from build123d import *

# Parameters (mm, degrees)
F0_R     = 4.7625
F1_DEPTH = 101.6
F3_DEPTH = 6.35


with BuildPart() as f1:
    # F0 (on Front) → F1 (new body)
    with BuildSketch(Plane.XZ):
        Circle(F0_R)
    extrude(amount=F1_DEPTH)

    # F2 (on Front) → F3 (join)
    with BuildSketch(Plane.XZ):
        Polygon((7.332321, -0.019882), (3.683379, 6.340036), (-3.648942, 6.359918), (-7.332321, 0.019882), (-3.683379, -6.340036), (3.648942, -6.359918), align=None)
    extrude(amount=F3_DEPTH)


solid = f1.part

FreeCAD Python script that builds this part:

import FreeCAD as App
import Part
import Sketcher
from FreeCAD import Vector
Q = App.Units.Quantity


def add_polygon(sketch, points):
    """Adds a closed chain of lines whose ends are joined by coincident constraints."""
    first, n = sketch.GeometryCount, len(points)
    for a, b in zip(points, points[1:] + points[:1]):
        sketch.addGeometry(Part.LineSegment(App.Vector(*a, 0), App.Vector(*b, 0)), False)
    for i in range(n):
        sketch.addConstraint(Sketcher.Constraint("Coincident", first + i, 2, first + (i + 1) % n, 1))

doc = App.newDocument("Part")
body = doc.addObject("PartDesign::Body", "Body")

sketch1 = body.newObject("Sketcher::SketchObject", "Sketch")
sketch1.AttachmentSupport = (doc.getObject("XZ_Plane"), [""])
sketch1.MapMode = "FlatFace"
sketch1.addGeometry(Part.Circle(Vector(0, 0, 0), Vector(0, 0, 1), 4.7625), False)
sketch1.addConstraint([
    Sketcher.Constraint("Coincident", 0, 3, -1, 1),
    Sketcher.Constraint("Diameter", 0, Q("0.375 in")),
])
pad1 = body.newObject("PartDesign::Pad", "Pad")
pad1.Profile = sketch1
pad1.Length = Q("4 in")

sketch2 = body.newObject("Sketcher::SketchObject", "Sketch001")
sketch2.AttachmentSupport = (doc.getObject("XZ_Plane"), [""])
sketch2.MapMode = "FlatFace"
add_polygon(sketch2, [(7.332321, -0.019882), (3.683379, 6.340036), (-3.648942, 6.359918), (-7.332321, 0.019882), (-3.683379, -6.340036), (3.648942, -6.359918)])
sketch2.addConstraint([
    Sketcher.Constraint("Symmetric", 0, 2, 3, 2, -1, 1),
    Sketcher.Constraint("Symmetric", 1, 2, 4, 2, -1, 1),
    Sketcher.Constraint("Symmetric", 2, 2, 5, 2, -1, 1),
    Sketcher.Constraint("Equal", 0, 1),
    Sketcher.Constraint("Equal", 1, 2),
    Sketcher.Constraint("DistanceX", 2, 2, 0, 2, Q("11.0157 mm")),
    Sketcher.Constraint("DistanceY", 4, 2, 2, 2, Q("6.3798 mm")),
    Sketcher.Constraint("Distance", 0, Q("7.332349 mm")),
    Sketcher.Constraint("DistanceX", -1, 1, 0, 2, Q("3.683379 mm")),
])
pad2 = body.newObject("PartDesign::Pad", "Pad001")
pad2.Profile = sketch2
pad2.Length = Q("0.25 in")

doc.recompute()
